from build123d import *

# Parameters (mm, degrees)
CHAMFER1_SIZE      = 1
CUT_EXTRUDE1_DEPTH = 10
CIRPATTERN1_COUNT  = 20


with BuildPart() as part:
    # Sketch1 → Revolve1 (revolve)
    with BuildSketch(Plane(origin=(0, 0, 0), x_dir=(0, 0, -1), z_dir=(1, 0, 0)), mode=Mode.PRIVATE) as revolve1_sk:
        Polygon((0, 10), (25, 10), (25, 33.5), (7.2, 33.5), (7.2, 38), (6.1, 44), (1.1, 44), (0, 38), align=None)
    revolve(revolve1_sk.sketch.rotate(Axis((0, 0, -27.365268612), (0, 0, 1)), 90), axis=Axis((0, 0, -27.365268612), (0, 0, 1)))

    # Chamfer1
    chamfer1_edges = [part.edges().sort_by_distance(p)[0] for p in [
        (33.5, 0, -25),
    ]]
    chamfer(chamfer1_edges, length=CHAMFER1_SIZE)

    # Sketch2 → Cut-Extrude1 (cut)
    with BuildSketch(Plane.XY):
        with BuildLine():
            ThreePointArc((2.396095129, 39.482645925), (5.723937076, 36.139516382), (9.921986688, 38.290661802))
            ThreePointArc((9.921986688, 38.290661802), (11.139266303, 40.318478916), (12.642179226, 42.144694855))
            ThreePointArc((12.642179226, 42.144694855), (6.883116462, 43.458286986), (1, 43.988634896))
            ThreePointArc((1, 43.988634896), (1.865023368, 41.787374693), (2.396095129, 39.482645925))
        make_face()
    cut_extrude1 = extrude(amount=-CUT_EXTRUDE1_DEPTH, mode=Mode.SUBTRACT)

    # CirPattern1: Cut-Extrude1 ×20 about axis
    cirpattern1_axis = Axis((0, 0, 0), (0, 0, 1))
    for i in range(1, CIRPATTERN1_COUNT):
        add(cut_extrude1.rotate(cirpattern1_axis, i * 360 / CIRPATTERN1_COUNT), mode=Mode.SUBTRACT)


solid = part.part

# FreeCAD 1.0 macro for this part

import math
import FreeCAD as App
import Part
import Sketcher

V = App.Vector
Q = App.Units.Quantity


def edges_at(feature, points):
    """Names of the edges that pass closest to the given points."""
    edges = feature.Shape.Edges
    near = lambda p: min(range(len(edges)), key=lambda i: edges[i].distToShape(Part.Vertex(*p))[0])
    return sorted({f"Edge{near(p) + 1}" for p in points})

doc = App.newDocument("Part")
body = doc.addObject("PartDesign::Body", "Body")

sketch1 = body.newObject("Sketcher::SketchObject", "Sketch")
sketch1.AttachmentSupport = (doc.getObject("YZ_Plane"), [""])
sketch1.MapMode = "FlatFace"
sketch1.addGeometry([
    Part.LineSegment(V(10, 0, 0), V(10, -25, 0)),
    Part.LineSegment(V(10, -25, 0), V(33.5, -25, 0)),
    Part.LineSegment(V(33.5, -25, 0), V(33.5, -7.2, 0)),
    Part.LineSegment(V(33.5, -7.2, 0), V(38, -7.2, 0)),
    Part.LineSegment(V(38, -7.2, 0), V(44, -6.1, 0)),
    Part.LineSegment(V(44, -6.1, 0), V(44, -1.1, 0)),
    Part.LineSegment(V(44, -1.1, 0), V(38, 0, 0)),
    Part.LineSegment(V(38, 0, 0), V(10, 0, 0)),
], False)
sketch1.addConstraint([
    Sketcher.Constraint("Coincident", 0, 2, 1, 1),
    Sketcher.Constraint("Coincident", 1, 2, 2, 1),
    Sketcher.Constraint("Coincident", 2, 2, 3, 1),
    Sketcher.Constraint("Coincident", 3, 2, 4, 1),
    Sketcher.Constraint("Coincident", 4, 2, 5, 1),
    Sketcher.Constraint("Coincident", 5, 2, 6, 1),
    Sketcher.Constraint("Coincident", 6, 2, 7, 1),
    Sketcher.Constraint("Coincident", 7, 2, 0, 1),
    Sketcher.Constraint("Vertical", 0),
    Sketcher.Constraint("Horizontal", 1),
    Sketcher.Constraint("Vertical", 2),
    Sketcher.Constraint("Horizontal", 3),
    Sketcher.Constraint("Vertical", 5),
    Sketcher.Constraint("Horizontal", 7),
    Sketcher.Constraint("PointOnObject", 6, 2, -1),
    Sketcher.Constraint("Vertical", 3, 2, 6, 2),
    Sketcher.Constraint("Equal", 4, 6),
    Sketcher.Constraint("DistanceX", 7, 2, 7, 1, Q("28 mm")),
    Sketcher.Constraint("DistanceY", 0, 2, 0, 1, Q("25 mm")),
    Sketcher.Constraint("DistanceY", 5, 1, 5, 2, Q("5 mm")),
    Sketcher.Constraint("DistanceX", 1, 1, 1, 2, Q("23.5 mm")),
    Sketcher.Constraint("DistanceY", 2, 1, 2, 2, Q("17.8 mm")),
    Sketcher.Constraint("DistanceX", -1, 1, 0, 2, Q("10 mm")),
    Sketcher.Constraint("DistanceX", -1, 1, 4, 2, Q("44 mm")),
])
revolution = body.newObject("PartDesign::Revolution", "Revolution")
revolution.Profile = sketch1
revolution.ReferenceAxis = (sketch1, ["V_Axis"])
revolution.Angle = 360
doc.recompute()

chamfer = body.newObject("PartDesign::Chamfer", "Chamfer")
chamfer.Base = (revolution, edges_at(revolution, [(33.5, 0, -25)]))
chamfer.Size = 1

sketch2 = body.newObject("Sketcher::SketchObject", "Sketch001")
sketch2.AttachmentSupport = (doc.getObject("XY_Plane"), [""])
sketch2.MapMode = "FlatFace"
sketch2.addGeometry([
    Part.ArcOfCircle(Part.Circle(V(6.3, 40.1, 0), V(0, 0, 1), 4), math.radians(-171), math.radians(-27)),
    Part.ArcOfCircle(Part.Circle(V(24.2, 31.1, 0), V(0, 0, 1), 16), math.radians(136.31), math.radians(153.26)),
    Part.ArcOfCircle(Part.Circle(V(0, 0, 0), V(0, 0, 1), 44), math.radians(73.3), math.radians(88.7)),
    Part.ArcOfCircle(Part.Circle(V(-13.4, 37.1, 0), V(0, 0, 1), 16), math.radians(8.74), math.radians(25.69)),
], False)
sketch2.addConstraint([
    Sketcher.Constraint("Tangent", 0, 2, 1, 2),
    Sketcher.Constraint("Coincident", 1, 1, 2, 1),
    Sketcher.Constraint("Coincident", 2, 2, 3, 2),
    Sketcher.Constraint("Tangent", 3, 1, 0, 1),
    Sketcher.Constraint("Coincident", 2, 3, -1, 1),
    Sketcher.Constraint("Equal", 1, 3),
    Sketcher.Constraint("Radius", 0, Q("4 mm")),
    Sketcher.Constraint("Radius", 1, Q("16 mm")),
    Sketcher.Constraint("Radius", 2, Q("44 mm")),
    Sketcher.Constraint("DistanceX", -1, 1, 2, 2, Q("1 mm")),
    Sketcher.Constraint("DistanceX", 3, 3, 0, 3, Q("19.767899 mm")),
    Sketcher.Constraint("DistanceY", -1, 1, 0, 3, Q("40.09027 mm")),
    Sketcher.Constraint("DistanceY", -1, 1, 1, 3, Q("31.09223 mm")),
])
pocket1 = body.newObject("PartDesign::Pocket", "Pocket")
pocket1.Profile = sketch2
pocket1.Length = 10
doc.recompute()

polarpattern = body.newObject("PartDesign::PolarPattern", "PolarPattern")
polarpattern.Originals = [pocket1]
polarpattern.Axis = (doc.getObject("Z_Axis"), [""])
polarpattern.Angle = 360
polarpattern.Occurrences = 20
body.Tip = polarpattern

doc.recompute()
